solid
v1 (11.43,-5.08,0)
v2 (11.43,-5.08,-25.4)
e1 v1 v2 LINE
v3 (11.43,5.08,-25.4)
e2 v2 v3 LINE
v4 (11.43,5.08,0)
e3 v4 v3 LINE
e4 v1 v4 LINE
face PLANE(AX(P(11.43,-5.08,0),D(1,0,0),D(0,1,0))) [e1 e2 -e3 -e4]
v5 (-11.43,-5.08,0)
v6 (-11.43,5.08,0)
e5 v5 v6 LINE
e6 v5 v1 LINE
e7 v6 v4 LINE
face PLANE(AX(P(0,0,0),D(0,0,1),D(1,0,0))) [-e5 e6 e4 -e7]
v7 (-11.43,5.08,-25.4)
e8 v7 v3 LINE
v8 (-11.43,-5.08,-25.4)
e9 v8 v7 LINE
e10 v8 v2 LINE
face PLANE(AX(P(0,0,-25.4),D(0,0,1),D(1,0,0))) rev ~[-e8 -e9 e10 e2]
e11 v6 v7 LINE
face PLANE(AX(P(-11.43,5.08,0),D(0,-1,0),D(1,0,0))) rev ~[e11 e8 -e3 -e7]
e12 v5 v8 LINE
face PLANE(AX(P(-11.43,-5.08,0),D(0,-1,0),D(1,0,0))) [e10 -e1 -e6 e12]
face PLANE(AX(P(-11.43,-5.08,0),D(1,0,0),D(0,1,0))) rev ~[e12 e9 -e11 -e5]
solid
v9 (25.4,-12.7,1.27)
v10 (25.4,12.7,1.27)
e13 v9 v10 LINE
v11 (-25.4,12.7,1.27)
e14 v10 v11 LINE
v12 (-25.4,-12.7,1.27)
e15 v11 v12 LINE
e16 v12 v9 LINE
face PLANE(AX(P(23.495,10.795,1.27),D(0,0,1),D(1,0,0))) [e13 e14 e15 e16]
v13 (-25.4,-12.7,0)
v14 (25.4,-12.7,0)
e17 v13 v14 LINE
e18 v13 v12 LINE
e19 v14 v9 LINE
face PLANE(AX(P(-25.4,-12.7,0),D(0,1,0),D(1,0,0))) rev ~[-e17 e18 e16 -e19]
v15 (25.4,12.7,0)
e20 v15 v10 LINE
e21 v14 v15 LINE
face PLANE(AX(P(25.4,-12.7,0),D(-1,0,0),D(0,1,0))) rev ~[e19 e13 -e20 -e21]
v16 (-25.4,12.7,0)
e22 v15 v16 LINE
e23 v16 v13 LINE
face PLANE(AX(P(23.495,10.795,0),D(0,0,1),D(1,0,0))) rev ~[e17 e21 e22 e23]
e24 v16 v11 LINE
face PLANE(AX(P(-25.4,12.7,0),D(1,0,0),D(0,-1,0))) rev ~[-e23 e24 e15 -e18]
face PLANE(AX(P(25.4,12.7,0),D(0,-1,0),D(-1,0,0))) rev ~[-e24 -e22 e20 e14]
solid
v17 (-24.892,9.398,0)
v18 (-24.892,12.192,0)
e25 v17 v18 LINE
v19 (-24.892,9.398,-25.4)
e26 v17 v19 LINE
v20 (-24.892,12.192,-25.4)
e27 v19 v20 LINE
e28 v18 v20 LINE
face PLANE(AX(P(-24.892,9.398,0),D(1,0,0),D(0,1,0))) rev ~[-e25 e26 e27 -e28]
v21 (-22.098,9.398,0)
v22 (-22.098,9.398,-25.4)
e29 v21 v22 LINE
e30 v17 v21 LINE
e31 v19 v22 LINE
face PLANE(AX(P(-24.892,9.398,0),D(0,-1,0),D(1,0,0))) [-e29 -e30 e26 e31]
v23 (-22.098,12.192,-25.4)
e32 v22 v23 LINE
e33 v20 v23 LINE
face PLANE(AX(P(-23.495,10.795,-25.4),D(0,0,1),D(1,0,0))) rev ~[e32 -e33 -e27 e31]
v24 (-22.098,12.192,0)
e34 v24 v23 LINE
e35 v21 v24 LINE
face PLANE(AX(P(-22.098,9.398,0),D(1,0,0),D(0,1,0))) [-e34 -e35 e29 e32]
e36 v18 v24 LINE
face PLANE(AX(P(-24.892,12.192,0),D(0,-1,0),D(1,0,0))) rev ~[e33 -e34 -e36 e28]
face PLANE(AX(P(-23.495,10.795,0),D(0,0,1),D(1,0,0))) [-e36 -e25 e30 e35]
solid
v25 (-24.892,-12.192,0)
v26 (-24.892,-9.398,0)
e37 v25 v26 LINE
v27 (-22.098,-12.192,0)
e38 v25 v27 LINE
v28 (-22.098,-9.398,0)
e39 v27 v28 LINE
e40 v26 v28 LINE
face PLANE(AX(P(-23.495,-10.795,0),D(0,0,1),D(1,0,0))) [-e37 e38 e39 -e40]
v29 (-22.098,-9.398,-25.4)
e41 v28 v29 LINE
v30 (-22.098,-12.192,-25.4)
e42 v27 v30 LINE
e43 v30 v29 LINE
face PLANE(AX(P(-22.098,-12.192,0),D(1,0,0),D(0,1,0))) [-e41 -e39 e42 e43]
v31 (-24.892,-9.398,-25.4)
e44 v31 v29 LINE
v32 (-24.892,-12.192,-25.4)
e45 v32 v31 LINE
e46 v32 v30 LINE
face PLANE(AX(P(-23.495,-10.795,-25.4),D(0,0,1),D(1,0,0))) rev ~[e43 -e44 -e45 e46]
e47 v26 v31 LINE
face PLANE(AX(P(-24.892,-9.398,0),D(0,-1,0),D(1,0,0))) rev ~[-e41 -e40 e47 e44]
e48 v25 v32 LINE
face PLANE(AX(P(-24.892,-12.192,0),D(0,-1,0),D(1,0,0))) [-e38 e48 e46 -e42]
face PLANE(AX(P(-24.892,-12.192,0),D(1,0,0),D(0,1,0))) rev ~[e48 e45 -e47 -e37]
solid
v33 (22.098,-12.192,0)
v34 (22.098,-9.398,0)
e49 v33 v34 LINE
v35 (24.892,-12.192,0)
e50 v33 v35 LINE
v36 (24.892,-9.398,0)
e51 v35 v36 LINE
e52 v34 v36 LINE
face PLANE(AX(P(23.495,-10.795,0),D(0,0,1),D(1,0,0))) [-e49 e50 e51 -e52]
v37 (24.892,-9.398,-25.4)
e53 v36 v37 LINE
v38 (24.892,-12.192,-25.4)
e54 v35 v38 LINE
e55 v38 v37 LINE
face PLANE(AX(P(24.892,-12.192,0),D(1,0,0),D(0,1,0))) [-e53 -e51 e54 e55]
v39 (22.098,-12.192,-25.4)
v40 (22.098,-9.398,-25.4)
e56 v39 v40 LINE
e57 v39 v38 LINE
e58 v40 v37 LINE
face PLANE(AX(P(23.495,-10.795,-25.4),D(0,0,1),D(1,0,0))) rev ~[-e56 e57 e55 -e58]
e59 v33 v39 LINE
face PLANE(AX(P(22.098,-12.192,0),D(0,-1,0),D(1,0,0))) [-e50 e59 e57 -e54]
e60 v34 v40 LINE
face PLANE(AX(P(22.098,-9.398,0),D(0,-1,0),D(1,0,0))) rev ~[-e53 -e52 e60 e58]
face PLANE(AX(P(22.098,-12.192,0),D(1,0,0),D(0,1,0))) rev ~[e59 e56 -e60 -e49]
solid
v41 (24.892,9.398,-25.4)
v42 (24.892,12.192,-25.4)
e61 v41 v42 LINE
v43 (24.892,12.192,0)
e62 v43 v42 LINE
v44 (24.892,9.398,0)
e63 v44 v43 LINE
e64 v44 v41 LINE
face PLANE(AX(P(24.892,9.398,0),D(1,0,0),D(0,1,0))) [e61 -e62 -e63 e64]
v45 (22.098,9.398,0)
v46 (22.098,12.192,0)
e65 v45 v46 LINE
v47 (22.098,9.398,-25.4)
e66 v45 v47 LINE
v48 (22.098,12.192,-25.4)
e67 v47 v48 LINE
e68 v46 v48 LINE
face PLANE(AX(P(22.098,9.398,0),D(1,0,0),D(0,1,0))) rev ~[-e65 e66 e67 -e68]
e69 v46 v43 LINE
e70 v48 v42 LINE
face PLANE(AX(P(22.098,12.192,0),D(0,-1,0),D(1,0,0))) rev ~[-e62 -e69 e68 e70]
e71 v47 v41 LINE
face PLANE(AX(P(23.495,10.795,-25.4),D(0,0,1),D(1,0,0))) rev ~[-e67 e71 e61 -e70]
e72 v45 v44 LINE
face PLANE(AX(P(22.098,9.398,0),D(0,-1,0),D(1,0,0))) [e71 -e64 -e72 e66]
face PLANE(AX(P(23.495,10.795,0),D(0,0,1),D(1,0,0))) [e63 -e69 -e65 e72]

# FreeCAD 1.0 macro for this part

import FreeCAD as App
import Part
import Sketcher

V = App.Vector
Q = App.Units.Quantity

doc = App.newDocument("Part")
body = doc.addObject("PartDesign::Body", "Body")
body.AllowCompound = True

sketch1 = body.newObject("Sketcher::SketchObject", "Sketch")
sketch1.AttachmentSupport = (doc.getObject("XY_Plane"), [""])
sketch1.MapMode = "FlatFace"
sketch1.addGeometry([
    Part.LineSegment(V(-24.9, -9.4, 0), V(-24.9, -12.2, 0)),
    Part.LineSegment(V(-24.9, -12.2, 0), V(-22.1, -12.2, 0)),
    Part.LineSegment(V(-22.1, -12.2, 0), V(-22.1, -9.4, 0)),
    Part.LineSegment(V(-22.1, -9.4, 0), V(-24.9, -9.4, 0)),
    Part.LineSegment(V(22.1, -9.4, 0), V(22.1, -12.2, 0)),
    Part.LineSegment(V(22.1, -12.2, 0), V(24.9, -12.2, 0)),
    Part.LineSegment(V(24.9, -12.2, 0), V(24.9, -9.4, 0)),
    Part.LineSegment(V(24.9, -9.4, 0), V(22.1, -9.4, 0)),
    Part.LineSegment(V(22.1, 12.2, 0), V(22.1, 9.4, 0)),
    Part.LineSegment(V(22.1, 9.4, 0), V(24.9, 9.4, 0)),
    Part.LineSegment(V(24.9, 9.4, 0), V(24.9, 12.2, 0)),
    Part.LineSegment(V(24.9, 12.2, 0), V(22.1, 12.2, 0)),
    Part.LineSegment(V(-24.9, 12.2, 0), V(-24.9, 9.4, 0)),
    Part.LineSegment(V(-24.9, 9.4, 0), V(-22.1, 9.4, 0)),
    Part.LineSegment(V(-22.1, 9.4, 0), V(-22.1, 12.2, 0)),
    Part.LineSegment(V(-22.1, 12.2, 0), V(-24.9, 12.2, 0)),
    Part.LineSegment(V(-11.4, 5.1, 0), V(-11.4, -5.1, 0)),
    Part.LineSegment(V(-11.4, -5.1, 0), V(11.4, -5.1, 0)),
    Part.LineSegment(V(11.4, -5.1, 0), V(11.4, 5.1, 0)),
    Part.LineSegment(V(11.4, 5.1, 0), V(-11.4, 5.1, 0)),
], False)
sketch1.addConstraint([
    Sketcher.Constraint("Coincident", 0, 2, 1, 1),
    Sketcher.Constraint("Coincident", 1, 2, 2, 1),
    Sketcher.Constraint("Coincident", 2, 2, 3, 1),
    Sketcher.Constraint("Coincident", 3, 2, 0, 1),
    Sketcher.Constraint("Coincident", 4, 2, 5, 1),
    Sketcher.Constraint("Coincident", 5, 2, 6, 1),
    Sketcher.Constraint("Coincident", 6, 2, 7, 1),
    Sketcher.Constraint("Coincident", 7, 2, 4, 1),
    Sketcher.Constraint("Coincident", 8, 2, 9, 1),
    Sketcher.Constraint("Coincident", 9, 2, 10, 1),
    Sketcher.Constraint("Coincident", 10, 2, 11, 1),
    Sketcher.Constraint("Coincident", 11, 2, 8, 1),
    Sketcher.Constraint("Coincident", 12, 2, 13, 1),
    Sketcher.Constraint("Coincident", 13, 2, 14, 1),
    Sketcher.Constraint("Coincident", 14, 2, 15, 1),
    Sketcher.Constraint("Coincident", 15, 2, 12, 1),
    Sketcher.Constraint("Coincident", 16, 2, 17, 1),
    Sketcher.Constraint("Coincident", 17, 2, 18, 1),
    Sketcher.Constraint("Coincident", 18, 2, 19, 1),
    Sketcher.Constraint("Coincident", 19, 2, 16, 1),
    Sketcher.Constraint("Vertical", 0),
    Sketcher.Constraint("Horizontal", 1),
    Sketcher.Constraint("Vertical", 2),
    Sketcher.Constraint("Horizontal", 3),
    Sketcher.Constraint("Vertical", 4),
    Sketcher.Constraint("Horizontal", 5),
    Sketcher.Constraint("Vertical", 6),
    Sketcher.Constraint("Horizontal", 7),
    Sketcher.Constraint("Vertical", 8),
    Sketcher.Constraint("Horizontal", 9),
    Sketcher.Constraint("Vertical", 10),
    Sketcher.Constraint("Horizontal", 11),
    Sketcher.Constraint("Vertical", 12),
    Sketcher.Constraint("Horizontal", 13),
    Sketcher.Constraint("Vertical", 14),
    Sketcher.Constraint("Horizontal", 15),
    Sketcher.Constraint("Vertical", 16),
    Sketcher.Constraint("Horizontal", 17),
    Sketcher.Constraint("Vertical", 18),
    Sketcher.Constraint("Horizontal", 19),
    Sketcher.Constraint("Symmetric", 2, 2, 8, 2, -1, 1),
    Sketcher.Constraint("Symmetric", 0, 2, 10, 2, -1, 1),
    Sketcher.Constraint("Symmetric", 6, 2, 12, 2, -1, 1),
    Sketcher.Constraint("Symmetric", 4, 2, 14, 2, -1, 1),
    Sketcher.Constraint("Symmetric", 16, 2, 18, 2, -1, 1),
    Sketcher.Constraint("Symmetric", 1, 2, 4, 2, -2),
    Sketcher.Constraint("Symmetric", 3, 2, 6, 2, -2),
    Sketcher.Constraint("Equal", 15, 0),
    Sketcher.Constraint("DistanceX", 17, 1, 17, 2, Q("0.9 in")),
    Sketcher.Constraint("DistanceY", 16, 2, 16, 1, Q("0.4 in")),
    Sketcher.Constraint("DistanceX", 1, 1, 1, 2, Q("0.11 in")),
    Sketcher.Constraint("DistanceX", 0, 2, -1, 1, Q("0.98 in")),
    Sketcher.Constraint("DistanceY", 0, 2, -1, 1, Q("0.48 in")),
])
pad1 = body.newObject("PartDesign::Pad", "Pad")
pad1.Profile = sketch1
pad1.Length = Q("1 in")
pad1.Reversed = True
body2 = doc.addObject("PartDesign::Body", "Body001")

sketch2 = body2.newObject("Sketcher::SketchObject", "Sketch001")
sketch2.AttachmentSupport = (doc.getObject("XY_Plane001"), [""])
sketch2.MapMode = "FlatFace"
sketch2.addGeometry([
    Part.LineSegment(V(25, 13, 0), V(-25, 13, 0)),
    Part.LineSegment(V(-25, 13, 0), V(-25, -13, 0)),
    Part.LineSegment(V(-25, -13, 0), V(25, -13, 0)),
    Part.LineSegment(V(25, -13, 0), V(25, 13, 0)),
], False)
sketch2.addConstraint([
    Sketcher.Constraint("Coincident", 0, 2, 1, 1),
    Sketcher.Constraint("Coincident", 1, 2, 2, 1),
    Sketcher.Constraint("Coincident", 2, 2, 3, 1),
    Sketcher.Constraint("Coincident", 3, 2, 0, 1),
    Sketcher.Constraint("Horizontal", 0),
    Sketcher.Constraint("Vertical", 1),
    Sketcher.Constraint("Horizontal", 2),
    Sketcher.Constraint("Vertical", 3),
    Sketcher.Constraint("Symmetric", 0, 2, 2, 2, -1, 1),
    Sketcher.Constraint("DistanceX", 0, 2, 0, 1, Q("2 in")),
    Sketcher.Constraint("DistanceY", 1, 2, 1, 1, Q("1 in")),
])
pad2 = body2.newObject("PartDesign::Pad", "Pad001")
pad2.Profile = sketch2
pad2.Length = Q("0.05 in")

doc.recompute()
